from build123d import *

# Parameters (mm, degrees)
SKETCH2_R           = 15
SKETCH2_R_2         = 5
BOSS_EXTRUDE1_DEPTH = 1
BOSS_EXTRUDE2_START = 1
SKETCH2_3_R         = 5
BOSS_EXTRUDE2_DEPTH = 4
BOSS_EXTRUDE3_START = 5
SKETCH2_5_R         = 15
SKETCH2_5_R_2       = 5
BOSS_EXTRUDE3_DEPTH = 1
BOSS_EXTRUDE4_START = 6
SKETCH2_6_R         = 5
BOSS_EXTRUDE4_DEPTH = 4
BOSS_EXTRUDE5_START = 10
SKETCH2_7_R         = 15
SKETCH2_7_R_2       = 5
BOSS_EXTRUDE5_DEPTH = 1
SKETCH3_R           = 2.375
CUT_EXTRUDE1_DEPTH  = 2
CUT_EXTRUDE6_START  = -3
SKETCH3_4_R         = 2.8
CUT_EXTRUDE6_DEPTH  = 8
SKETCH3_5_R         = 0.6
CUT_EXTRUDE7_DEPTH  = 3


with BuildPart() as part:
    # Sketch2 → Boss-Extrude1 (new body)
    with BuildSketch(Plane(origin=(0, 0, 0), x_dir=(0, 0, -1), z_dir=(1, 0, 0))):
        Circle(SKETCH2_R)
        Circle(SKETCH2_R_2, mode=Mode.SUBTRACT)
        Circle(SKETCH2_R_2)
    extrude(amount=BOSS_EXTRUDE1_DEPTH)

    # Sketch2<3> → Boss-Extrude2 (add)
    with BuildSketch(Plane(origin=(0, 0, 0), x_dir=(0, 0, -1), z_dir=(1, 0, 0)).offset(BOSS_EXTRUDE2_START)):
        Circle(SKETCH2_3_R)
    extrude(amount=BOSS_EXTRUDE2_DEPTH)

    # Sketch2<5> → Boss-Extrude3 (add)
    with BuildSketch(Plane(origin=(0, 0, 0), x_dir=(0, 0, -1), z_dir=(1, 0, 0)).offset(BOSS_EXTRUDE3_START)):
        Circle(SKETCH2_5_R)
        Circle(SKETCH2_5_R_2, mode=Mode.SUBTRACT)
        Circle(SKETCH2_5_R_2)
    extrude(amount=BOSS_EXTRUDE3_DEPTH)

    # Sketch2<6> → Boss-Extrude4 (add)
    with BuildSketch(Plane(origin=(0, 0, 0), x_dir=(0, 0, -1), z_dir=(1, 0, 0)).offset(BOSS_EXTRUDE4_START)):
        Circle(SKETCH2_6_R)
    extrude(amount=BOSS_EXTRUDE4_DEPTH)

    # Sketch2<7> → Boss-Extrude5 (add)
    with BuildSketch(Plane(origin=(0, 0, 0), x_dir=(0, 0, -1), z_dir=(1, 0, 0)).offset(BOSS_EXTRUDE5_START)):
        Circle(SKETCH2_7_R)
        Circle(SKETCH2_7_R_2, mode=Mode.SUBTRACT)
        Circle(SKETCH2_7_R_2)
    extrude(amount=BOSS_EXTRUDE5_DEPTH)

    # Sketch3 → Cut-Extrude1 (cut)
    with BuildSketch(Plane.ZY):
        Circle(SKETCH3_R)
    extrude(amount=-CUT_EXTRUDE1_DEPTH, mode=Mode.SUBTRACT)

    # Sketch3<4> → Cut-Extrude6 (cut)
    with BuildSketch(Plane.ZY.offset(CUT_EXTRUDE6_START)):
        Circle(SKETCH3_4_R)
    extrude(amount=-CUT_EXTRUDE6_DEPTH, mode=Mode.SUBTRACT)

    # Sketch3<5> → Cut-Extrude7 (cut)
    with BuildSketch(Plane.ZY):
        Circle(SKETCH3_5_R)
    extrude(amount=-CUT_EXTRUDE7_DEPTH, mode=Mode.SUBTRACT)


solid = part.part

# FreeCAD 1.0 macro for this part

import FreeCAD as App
import Part
import Sketcher

V = App.Vector
Q = App.Units.Quantity

doc = App.newDocument("Part")
body = doc.addObject("PartDesign::Body", "Body")

# Sketch on YZ plane
sketch1 = body.newObject("Sketcher::SketchObject", "Sketch")
sketch1.AttachmentSupport = (doc.getObject("YZ_Plane"), [""])
sketch1.MapMode = "FlatFace"
sketch1.addGeometry(Part.Circle(V(0, 0, 0), V(0, 0, 1), 15), False)
sketch1.addConstraint(Sketcher.Constraint("Coincident", 0, 3, -1, 1))
sketch1.addConstraint(Sketcher.Constraint("Diameter", 0, Q("30 mm")))
pad1 = body.newObject("PartDesign::Pad", "Pad")
pad1.Profile = sketch1
pad1.Length = 1

# Sketch on YZ plane
sketch2 = body.newObject("Sketcher::SketchObject", "Sketch001")
sketch2.AttachmentSupport = (doc.getObject("YZ_Plane"), [""])
sketch2.MapMode = "FlatFace"
sketch2.AttachmentOffset = App.Placement(V(0, 0, 1), App.Rotation())
sketch2.addGeometry(Part.Circle(V(0, 0, 0), V(0, 0, 1), 5), False)
sketch2.addConstraint(Sketcher.Constraint("Coincident", 0, 3, -1, 1))
sketch2.addConstraint(Sketcher.Constraint("Diameter", 0, Q("10 mm")))
pad2 = body.newObject("PartDesign::Pad", "Pad001")
pad2.Profile = sketch2
pad2.Length = 4

# Sketch on YZ plane
sketch3 = body.newObject("Sketcher::SketchObject", "Sketch002")
sketch3.AttachmentSupport = (doc.getObject("YZ_Plane"), [""])
sketch3.MapMode = "FlatFace"
sketch3.AttachmentOffset = App.Placement(V(0, 0, 5), App.Rotation())
sketch3.addGeometry(Part.Circle(V(0, 0, 0), V(0, 0, 1), 15), False)
sketch3.addConstraint(Sketcher.Constraint("Coincident", 0, 3, -1, 1))
sketch3.addConstraint(Sketcher.Constraint("Diameter", 0, Q("30 mm")))
pad3 = body.newObject("PartDesign::Pad", "Pad002")
pad3.Profile = sketch3
pad3.Length = 1

# Sketch on YZ plane
sketch4 = body.newObject("Sketcher::SketchObject", "Sketch003")
sketch4.AttachmentSupport = (doc.getObject("YZ_Plane"), [""])
sketch4.MapMode = "FlatFace"
sketch4.AttachmentOffset = App.Placement(V(0, 0, 6), App.Rotation())
sketch4.addGeometry(Part.Circle(V(0, 0, 0), V(0, 0, 1), 5), False)
sketch4.addConstraint(Sketcher.Constraint("Coincident", 0, 3, -1, 1))
sketch4.addConstraint(Sketcher.Constraint("Diameter", 0, Q("10 mm")))
pad4 = body.newObject("PartDesign::Pad", "Pad003")
pad4.Profile = sketch4
pad4.Length = 4

# Sketch on YZ plane
sketch5 = body.newObject("Sketcher::SketchObject", "Sketch004")
sketch5.AttachmentSupport = (doc.getObject("YZ_Plane"), [""])
sketch5.MapMode = "FlatFace"
sketch5.AttachmentOffset = App.Placement(V(0, 0, 10), App.Rotation())
sketch5.addGeometry(Part.Circle(V(0, 0, 0), V(0, 0, 1), 15), False)
sketch5.addConstraint(Sketcher.Constraint("Coincident", 0, 3, -1, 1))
sketch5.addConstraint(Sketcher.Constraint("Diameter", 0, Q("30 mm")))
pad5 = body.newObject("PartDesign::Pad", "Pad004")
pad5.Profile = sketch5
pad5.Length = 1

# Sketch on YZ plane
sketch6 = body.newObject("Sketcher::SketchObject", "Sketch005")
sketch6.AttachmentSupport = (doc.getObject("YZ_Plane"), [""])
sketch6.MapMode = "FlatFace"
sketch6.addGeometry(Part.Circle(V(0, 0, 0), V(0, 0, 1), 2.4), False)
sketch6.addConstraint(Sketcher.Constraint("Coincident", 0, 3, -1, 1))
sketch6.addConstraint(Sketcher.Constraint("Diameter", 0, Q("4.75 mm")))
pocket1 = body.newObject("PartDesign::Pocket", "Pocket")
pocket1.Profile = sketch6
pocket1.Length = 2
pocket1.Reversed = True

# Sketch on YZ plane
sketch7 = body.newObject("Sketcher::SketchObject", "Sketch006")
sketch7.AttachmentSupport = (doc.getObject("YZ_Plane"), [""])
sketch7.MapMode = "FlatFace"
sketch7.AttachmentOffset = App.Placement(V(0, 0, 3), App.Rotation())
sketch7.addGeometry(Part.Circle(V(0, 0, 0), V(0, 0, 1), 2.8), False)
sketch7.addConstraint(Sketcher.Constraint("Coincident", 0, 3, -1, 1))
sketch7.addConstraint(Sketcher.Constraint("Diameter", 0, Q("5.6 mm")))
pocket2 = body.newObject("PartDesign::Pocket", "Pocket001")
pocket2.Profile = sketch7
pocket2.Length = 8
pocket2.Reversed = True

# Sketch on YZ plane
sketch8 = body.newObject("Sketcher::SketchObject", "Sketch007")
sketch8.AttachmentSupport = (doc.getObject("YZ_Plane"), [""])
sketch8.MapMode = "FlatFace"
sketch8.addGeometry(Part.Circle(V(0, 0, 0), V(0, 0, 1), 0.6), False)
sketch8.addConstraint(Sketcher.Constraint("Coincident", 0, 3, -1, 1))
sketch8.addConstraint(Sketcher.Constraint("Diameter", 0, Q("1.2 mm")))
pocket3 = body.newObject("PartDesign::Pocket", "Pocket002")
pocket3.Profile = sketch8
pocket3.Length = 3
pocket3.Reversed = True

doc.recompute()
